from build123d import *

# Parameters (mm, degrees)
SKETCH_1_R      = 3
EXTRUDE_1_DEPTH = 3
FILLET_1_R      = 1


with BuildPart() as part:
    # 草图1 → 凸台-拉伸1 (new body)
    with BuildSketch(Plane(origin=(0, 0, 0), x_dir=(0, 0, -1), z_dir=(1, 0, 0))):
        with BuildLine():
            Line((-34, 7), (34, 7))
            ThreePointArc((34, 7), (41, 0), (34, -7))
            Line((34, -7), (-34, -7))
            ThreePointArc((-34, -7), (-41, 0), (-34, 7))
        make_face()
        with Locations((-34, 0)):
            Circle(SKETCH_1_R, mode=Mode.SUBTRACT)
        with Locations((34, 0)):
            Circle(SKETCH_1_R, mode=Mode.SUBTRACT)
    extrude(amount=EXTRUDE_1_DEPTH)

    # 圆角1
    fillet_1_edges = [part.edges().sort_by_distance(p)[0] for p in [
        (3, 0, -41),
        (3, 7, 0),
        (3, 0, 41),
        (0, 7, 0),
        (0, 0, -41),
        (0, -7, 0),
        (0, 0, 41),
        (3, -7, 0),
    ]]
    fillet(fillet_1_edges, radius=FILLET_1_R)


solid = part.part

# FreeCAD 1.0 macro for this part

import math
import FreeCAD as App
import Part
import Sketcher

V = App.Vector
Q = App.Units.Quantity


def edges_at(feature, points):
    """Names of the edges that pass closest to the given points."""
    edges = feature.Shape.Edges
    near = lambda p: min(range(len(edges)), key=lambda i: edges[i].distToShape(Part.Vertex(*p))[0])
    return sorted({f"Edge{near(p) + 1}" for p in points})

doc = App.newDocument("Part")
body = doc.addObject("PartDesign::Body", "Body")

# Sketch on YZ plane
sketch1 = doc.addObject("Sketcher::SketchObject", "Sketch")
body.addObject(sketch1)
sketch1.AttachmentSupport = (doc.YZ_Plane, [""])
sketch1.MapMode = "FlatFace"
sketch1.addGeometry([
    Part.LineSegment(V(7, -34, 0), V(7, 34, 0)),  # 0
    Part.ArcOfCircle(Part.Circle(V(0, 34, 0), V(0, 0, 1), 7), math.radians(0), math.radians(180)),  # 1
    Part.LineSegment(V(-7, 34, 0), V(-7, -34, 0)),  # 2
    Part.ArcOfCircle(Part.Circle(V(0, -34, 0), V(0, 0, 1), 7), math.radians(180), math.radians(360)),  # 3
    Part.Circle(V(0, -34, 0), V(0, 0, 1), 3),  # 4
    Part.Circle(V(0, 34, 0), V(0, 0, 1), 3),  # 5
], False)
sketch1.addConstraint([
    Sketcher.Constraint("Tangent", 0, 2, 1, 1),
    Sketcher.Constraint("Tangent", 1, 2, 2, 1),
    Sketcher.Constraint("Tangent", 2, 2, 3, 1),
    Sketcher.Constraint("Tangent", 3, 2, 0, 1),
    Sketcher.Constraint("Vertical", 0),
    Sketcher.Constraint("Vertical", 2),
    Sketcher.Constraint("Coincident", 4, 3, 3, 3),
    Sketcher.Constraint("Coincident", 5, 3, 1, 3),
    Sketcher.Constraint("Equal", 4, 5),
    Sketcher.Constraint("Symmetric", 1, 3, 3, 3, -1, 1),
    Sketcher.Constraint("Diameter", 4, Q("6 mm")),
    Sketcher.Constraint("Radius", 1, Q("7 mm")),
    Sketcher.Constraint("DistanceY", 0, 1, 0, 2, Q("68 mm")),
])
pad1 = doc.addObject("PartDesign::Pad", "Pad")
body.addObject(pad1)
pad1.Profile = sketch1
pad1.Length = 3
doc.recompute()

fillet = doc.addObject("PartDesign::Fillet", "Fillet")
body.addObject(fillet)
fillet.Base = (pad1, edges_at(pad1, [
    (3, 0, -41),
    (3, 7, 0),
    (3, 0, 41),
    (0, 7, 0),
    (0, 0, -41),
    (0, -7, 0),
    (0, 0, 41),
    (3, -7, 0),
]))
fillet.Radius = 1

doc.recompute()
